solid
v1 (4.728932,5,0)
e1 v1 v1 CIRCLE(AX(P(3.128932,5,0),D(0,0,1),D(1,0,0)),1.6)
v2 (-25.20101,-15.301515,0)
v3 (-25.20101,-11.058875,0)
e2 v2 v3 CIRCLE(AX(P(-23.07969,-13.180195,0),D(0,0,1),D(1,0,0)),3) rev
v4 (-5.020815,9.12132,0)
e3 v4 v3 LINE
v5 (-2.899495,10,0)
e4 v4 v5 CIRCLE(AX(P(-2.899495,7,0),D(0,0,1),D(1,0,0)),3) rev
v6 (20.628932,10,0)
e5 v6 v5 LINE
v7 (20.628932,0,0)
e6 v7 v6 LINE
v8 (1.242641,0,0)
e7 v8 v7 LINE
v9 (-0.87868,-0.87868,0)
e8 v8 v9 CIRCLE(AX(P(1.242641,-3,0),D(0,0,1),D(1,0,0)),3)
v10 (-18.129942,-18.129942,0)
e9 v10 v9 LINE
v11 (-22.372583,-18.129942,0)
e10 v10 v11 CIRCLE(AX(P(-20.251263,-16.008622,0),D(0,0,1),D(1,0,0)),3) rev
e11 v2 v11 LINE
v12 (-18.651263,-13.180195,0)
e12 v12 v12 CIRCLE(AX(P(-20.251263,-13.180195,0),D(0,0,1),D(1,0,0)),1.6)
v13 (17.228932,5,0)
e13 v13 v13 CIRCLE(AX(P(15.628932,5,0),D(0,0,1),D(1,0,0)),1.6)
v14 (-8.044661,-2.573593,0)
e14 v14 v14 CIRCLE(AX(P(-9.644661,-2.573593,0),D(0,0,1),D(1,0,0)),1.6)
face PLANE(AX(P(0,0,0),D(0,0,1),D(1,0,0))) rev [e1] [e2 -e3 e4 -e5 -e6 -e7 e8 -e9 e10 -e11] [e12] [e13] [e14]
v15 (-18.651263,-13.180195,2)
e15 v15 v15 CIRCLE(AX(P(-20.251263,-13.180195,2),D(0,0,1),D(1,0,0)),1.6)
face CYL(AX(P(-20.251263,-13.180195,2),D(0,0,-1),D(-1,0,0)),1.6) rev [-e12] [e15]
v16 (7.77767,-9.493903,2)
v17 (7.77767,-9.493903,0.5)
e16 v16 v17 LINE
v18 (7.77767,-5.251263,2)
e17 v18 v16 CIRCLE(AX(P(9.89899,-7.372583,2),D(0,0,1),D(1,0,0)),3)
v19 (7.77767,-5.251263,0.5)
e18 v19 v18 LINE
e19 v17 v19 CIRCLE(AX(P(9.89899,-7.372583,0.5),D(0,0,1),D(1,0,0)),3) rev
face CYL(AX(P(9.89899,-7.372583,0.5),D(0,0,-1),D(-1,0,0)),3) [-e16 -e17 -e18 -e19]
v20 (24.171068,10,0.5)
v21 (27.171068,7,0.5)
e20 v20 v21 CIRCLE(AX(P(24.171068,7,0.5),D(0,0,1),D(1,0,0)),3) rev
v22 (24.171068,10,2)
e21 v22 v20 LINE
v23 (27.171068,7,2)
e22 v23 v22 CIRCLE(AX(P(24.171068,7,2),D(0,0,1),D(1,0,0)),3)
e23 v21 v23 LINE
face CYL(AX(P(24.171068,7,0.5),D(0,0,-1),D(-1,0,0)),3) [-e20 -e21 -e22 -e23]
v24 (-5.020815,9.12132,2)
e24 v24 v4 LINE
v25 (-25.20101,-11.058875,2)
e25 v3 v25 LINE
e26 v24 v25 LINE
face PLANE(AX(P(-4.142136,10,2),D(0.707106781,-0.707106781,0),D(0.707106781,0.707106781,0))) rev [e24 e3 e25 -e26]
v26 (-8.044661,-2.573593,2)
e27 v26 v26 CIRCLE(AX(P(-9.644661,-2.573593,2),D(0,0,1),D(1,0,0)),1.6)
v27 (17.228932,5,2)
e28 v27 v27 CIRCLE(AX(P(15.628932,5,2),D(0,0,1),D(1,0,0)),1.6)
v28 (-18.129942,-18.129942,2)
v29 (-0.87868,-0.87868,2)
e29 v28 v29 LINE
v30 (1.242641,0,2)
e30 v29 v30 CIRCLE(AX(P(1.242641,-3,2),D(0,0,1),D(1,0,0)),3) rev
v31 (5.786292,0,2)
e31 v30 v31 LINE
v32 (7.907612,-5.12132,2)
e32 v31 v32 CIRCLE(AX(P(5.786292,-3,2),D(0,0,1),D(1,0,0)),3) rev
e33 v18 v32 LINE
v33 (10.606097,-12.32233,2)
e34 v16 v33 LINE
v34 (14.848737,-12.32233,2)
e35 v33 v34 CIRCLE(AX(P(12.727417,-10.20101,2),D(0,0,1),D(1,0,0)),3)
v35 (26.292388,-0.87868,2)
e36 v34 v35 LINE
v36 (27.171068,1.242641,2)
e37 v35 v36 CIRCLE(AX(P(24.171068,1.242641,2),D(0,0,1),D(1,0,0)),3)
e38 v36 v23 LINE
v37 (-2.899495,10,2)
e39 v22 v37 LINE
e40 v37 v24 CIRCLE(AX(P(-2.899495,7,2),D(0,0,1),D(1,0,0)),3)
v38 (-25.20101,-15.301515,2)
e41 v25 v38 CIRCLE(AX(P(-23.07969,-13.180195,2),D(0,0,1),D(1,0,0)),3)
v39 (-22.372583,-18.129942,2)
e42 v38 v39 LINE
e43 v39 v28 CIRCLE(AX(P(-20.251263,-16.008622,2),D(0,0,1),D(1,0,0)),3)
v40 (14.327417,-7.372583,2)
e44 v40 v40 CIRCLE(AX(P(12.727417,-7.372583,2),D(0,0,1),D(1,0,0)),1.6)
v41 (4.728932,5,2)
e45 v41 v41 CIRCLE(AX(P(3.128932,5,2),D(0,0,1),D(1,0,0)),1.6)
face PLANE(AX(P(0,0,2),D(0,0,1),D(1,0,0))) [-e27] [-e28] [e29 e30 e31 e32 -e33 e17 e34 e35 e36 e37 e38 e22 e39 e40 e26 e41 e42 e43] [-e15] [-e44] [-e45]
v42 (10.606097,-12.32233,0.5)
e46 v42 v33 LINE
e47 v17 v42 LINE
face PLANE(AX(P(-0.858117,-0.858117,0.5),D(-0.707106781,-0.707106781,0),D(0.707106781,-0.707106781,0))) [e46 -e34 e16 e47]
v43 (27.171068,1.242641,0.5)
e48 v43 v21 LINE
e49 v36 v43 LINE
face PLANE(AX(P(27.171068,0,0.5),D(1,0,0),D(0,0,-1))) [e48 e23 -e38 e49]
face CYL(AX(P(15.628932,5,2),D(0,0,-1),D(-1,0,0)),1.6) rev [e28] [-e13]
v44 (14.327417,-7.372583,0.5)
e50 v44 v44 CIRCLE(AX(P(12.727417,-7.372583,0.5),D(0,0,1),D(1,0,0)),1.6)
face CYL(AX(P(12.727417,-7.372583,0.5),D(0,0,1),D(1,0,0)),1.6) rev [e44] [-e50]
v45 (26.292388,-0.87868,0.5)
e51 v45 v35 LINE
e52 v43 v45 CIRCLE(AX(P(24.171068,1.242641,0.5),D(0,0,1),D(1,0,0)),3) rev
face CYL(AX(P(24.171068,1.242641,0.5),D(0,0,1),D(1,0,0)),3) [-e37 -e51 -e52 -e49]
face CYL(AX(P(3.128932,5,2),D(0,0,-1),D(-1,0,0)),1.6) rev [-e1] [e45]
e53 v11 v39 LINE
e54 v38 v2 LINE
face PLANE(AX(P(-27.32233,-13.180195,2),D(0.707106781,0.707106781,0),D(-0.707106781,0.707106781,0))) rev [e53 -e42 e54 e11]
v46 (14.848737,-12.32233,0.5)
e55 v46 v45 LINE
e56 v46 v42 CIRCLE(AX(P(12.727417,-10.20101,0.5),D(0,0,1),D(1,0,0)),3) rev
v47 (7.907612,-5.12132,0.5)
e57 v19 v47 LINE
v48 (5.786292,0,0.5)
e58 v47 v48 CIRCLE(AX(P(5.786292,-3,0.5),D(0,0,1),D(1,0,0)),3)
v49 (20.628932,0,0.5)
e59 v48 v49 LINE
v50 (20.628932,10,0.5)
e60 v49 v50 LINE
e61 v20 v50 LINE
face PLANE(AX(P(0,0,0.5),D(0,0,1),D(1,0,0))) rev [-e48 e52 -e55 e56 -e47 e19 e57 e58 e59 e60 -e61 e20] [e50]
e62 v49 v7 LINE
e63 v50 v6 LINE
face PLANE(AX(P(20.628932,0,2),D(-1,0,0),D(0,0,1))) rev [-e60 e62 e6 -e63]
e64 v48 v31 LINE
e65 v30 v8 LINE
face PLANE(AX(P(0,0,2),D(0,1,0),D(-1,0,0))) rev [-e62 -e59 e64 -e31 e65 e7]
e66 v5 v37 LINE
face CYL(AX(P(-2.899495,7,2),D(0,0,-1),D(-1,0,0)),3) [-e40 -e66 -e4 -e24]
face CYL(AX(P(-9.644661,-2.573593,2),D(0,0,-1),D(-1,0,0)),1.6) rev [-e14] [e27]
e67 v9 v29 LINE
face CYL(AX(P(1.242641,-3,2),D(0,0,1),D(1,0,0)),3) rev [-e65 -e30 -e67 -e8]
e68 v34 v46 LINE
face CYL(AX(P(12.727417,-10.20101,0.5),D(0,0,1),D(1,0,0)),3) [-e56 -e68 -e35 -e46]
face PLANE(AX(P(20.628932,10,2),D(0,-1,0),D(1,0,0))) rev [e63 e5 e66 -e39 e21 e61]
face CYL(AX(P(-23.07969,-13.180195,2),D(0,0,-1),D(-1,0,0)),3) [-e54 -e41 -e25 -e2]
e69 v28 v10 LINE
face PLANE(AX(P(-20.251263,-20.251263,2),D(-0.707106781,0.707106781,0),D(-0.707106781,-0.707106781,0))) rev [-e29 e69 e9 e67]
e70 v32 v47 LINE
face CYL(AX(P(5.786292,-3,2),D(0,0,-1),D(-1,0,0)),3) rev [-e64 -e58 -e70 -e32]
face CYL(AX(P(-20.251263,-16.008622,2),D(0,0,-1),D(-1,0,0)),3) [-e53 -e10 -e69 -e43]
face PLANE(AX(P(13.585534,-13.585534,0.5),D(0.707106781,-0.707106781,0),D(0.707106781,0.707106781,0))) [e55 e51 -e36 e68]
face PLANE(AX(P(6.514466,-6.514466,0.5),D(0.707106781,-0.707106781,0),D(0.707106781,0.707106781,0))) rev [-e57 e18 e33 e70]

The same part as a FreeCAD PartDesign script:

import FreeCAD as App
import Part
import Sketcher
Q = App.Units.Quantity


def edges_at(feature, points):
    """Names of the edges that pass closest to the given points."""
    edges = feature.Shape.Edges
    near = lambda p: min(range(len(edges)), key=lambda i: edges[i].distToShape(Part.Vertex(*p))[0])
    return sorted({f"Edge{near(p) + 1}" for p in points})

doc = App.newDocument("Part")
params = doc.addObject("Spreadsheet::Sheet", "Params")
for row, (alias, value) in enumerate([
    ("sketch1_diameter", "3.2 mm"),
    ("sketch1_height", "10 mm"),
    ("sketch1_length", "10 mm"),
    ("pad1_length", "2 mm"),
    ("sketch2_diameter", "3.2 mm"),
    ("sketch2_height", "10 mm"),
    ("sketch2_length", "10 mm"),
    ("sketch2_width", "7.6 mm"),
    ("pad2_length", "1.5 mm"),
    ("fillet_radius", "3 mm"),
], start=1):
    params.set(f"A{row}", alias)
    params.set(f"B{row}", "=" + value)
    params.setAlias(f"B{row}", alias)

body = doc.addObject("PartDesign::Body", "Body")

# Sketch on XY plane
sketch1 = body.newObject("Sketcher::SketchObject", "Sketch")
sketch1.AttachmentSupport = (doc.getObject("XY_Plane"), [""])
sketch1.MapMode = "FlatFace"
sketch1.addGeometry([
    Part.LineSegment(App.Vector(-27.3, -13.2, 0), App.Vector(-20.3, -20.3, 0)),  # 0
    Part.LineSegment(App.Vector(-20.3, -20.3, 0), App.Vector(0, 0, 0)),  # 1
    Part.LineSegment(App.Vector(0, 0, 0), App.Vector(20.6, 0, 0)),  # 2
    Part.LineSegment(App.Vector(20.6, 0, 0), App.Vector(20.6, 10, 0)),  # 3
    Part.LineSegment(App.Vector(20.6, 10, 0), App.Vector(-4.1, 10, 0)),  # 4
    Part.LineSegment(App.Vector(-4.1, 10, 0), App.Vector(-27.3, -13.2, 0)),  # 5
    Part.Circle(App.Vector(-20.3, -13.2, 0), App.Vector(0, 0, 1), 1.6),  # 6
    Part.Circle(App.Vector(-9.6, -2.6, 0), App.Vector(0, 0, 1), 1.6),  # 7
    Part.Circle(App.Vector(3.1, 5, 0), App.Vector(0, 0, 1), 1.6),  # 8
    Part.Circle(App.Vector(15.6, 5, 0), App.Vector(0, 0, 1), 1.6),  # 9
], False)
sketch1.addConstraint([
    Sketcher.Constraint("Coincident", 0, 2, 1, 1),
    Sketcher.Constraint("Coincident", 1, 2, 2, 1),
    Sketcher.Constraint("Coincident", 2, 2, 3, 1),
    Sketcher.Constraint("Coincident", 3, 2, 4, 1),
    Sketcher.Constraint("Coincident", 4, 2, 5, 1),
    Sketcher.Constraint("Coincident", 5, 2, 0, 1),
    Sketcher.Constraint("Horizontal", 2),
    Sketcher.Constraint("Vertical", 3),
    Sketcher.Constraint("Horizontal", 4),
    Sketcher.Constraint("Coincident", 1, 2, -1, 1),
    Sketcher.Constraint("Equal", 6, 7),
    Sketcher.Constraint("Equal", 7, 8),
    Sketcher.Constraint("Equal", 8, 9),
    Sketcher.Constraint("Perpendicular", 0, 1),
    Sketcher.Constraint("Parallel", 1, 5),
    Sketcher.Constraint("Horizontal", 8, 3, 9, 3),
    Sketcher.Constraint("Horizontal", 6, 3, 5, 2),
    Sketcher.Constraint("Vertical", 6, 3, 0, 2),
    Sketcher.Constraint("Diameter", 6, Q("3.2 mm")),
    Sketcher.Constraint("DistanceY", 3, 1, 3, 2, Q("10 mm")),
    Sketcher.Constraint("Angle", 0, Q("-45 deg")),
    Sketcher.Constraint("Distance", 0, Q("10 mm")),
    Sketcher.Constraint("DistanceY", -1, 1, 8, 3, Q("5 mm")),
    Sketcher.Constraint("DistanceX", 9, 3, 2, 2, Q("5 mm")),
    Sketcher.Constraint("DistanceX", 8, 3, 9, 3, Q("12.5 mm")),
    Sketcher.Constraint("DistanceX", 6, 3, 7, 3, Q("10.606602 mm")),
    Sketcher.Constraint("DistanceY", 6, 3, 7, 3, Q("10.606602 mm")),
    Sketcher.Constraint("Distance", 1, Q("28.63961 mm")),
    Sketcher.Constraint("DistanceX", 2, 1, 2, 2, Q("20.628932 mm")),
])
sketch1.setExpression("Constraints[18]", "Params.sketch1_diameter")
sketch1.setExpression("Constraints[19]", "Params.sketch1_height")
sketch1.setExpression("Constraints[21]", "Params.sketch1_length")
pad1 = body.newObject("PartDesign::Pad", "Pad")
pad1.Profile = sketch1
pad1.setExpression("Length", "Params.pad1_length")

# Sketch on XY plane
sketch2 = body.newObject("Sketcher::SketchObject", "Sketch001")
sketch2.AttachmentSupport = (doc.getObject("XY_Plane"), [""])
sketch2.MapMode = "FlatFace"
sketch2.AttachmentOffset = App.Placement(App.Vector(0, 0, 2), App.Rotation())
sketch2.addGeometry([
    Part.LineSegment(App.Vector(13, 0, 0), App.Vector(5.7, -7.4, 0)),  # 0
    Part.LineSegment(App.Vector(5.7, -7.4, 0), App.Vector(12.7, -14.4, 0)),  # 1
    Part.LineSegment(App.Vector(12.7, -14.4, 0), App.Vector(27.2, 0, 0)),  # 2
    Part.LineSegment(App.Vector(27.2, 0, 0), App.Vector(27.2, 10, 0)),  # 3
    Part.LineSegment(App.Vector(27.2, 10, 0), App.Vector(20.6, 10, 0)),  # 4
    Part.LineSegment(App.Vector(20.6, 10, 0), App.Vector(20.6, 0, 0)),  # 5
    Part.LineSegment(App.Vector(20.6, 0, 0), App.Vector(13, 0, 0)),  # 6
    Part.Circle(App.Vector(12.7, -7.4, 0), App.Vector(0, 0, 1), 1.6),  # 7
], False)
sketch2.addConstraint([
    Sketcher.Constraint("Coincident", 0, 2, 1, 1),
    Sketcher.Constraint("Coincident", 1, 2, 2, 1),
    Sketcher.Constraint("Coincident", 2, 2, 3, 1),
    Sketcher.Constraint("Coincident", 3, 2, 4, 1),
    Sketcher.Constraint("Coincident", 4, 2, 5, 1),
    Sketcher.Constraint("Coincident", 5, 2, 6, 1),
    Sketcher.Constraint("Coincident", 6, 2, 0, 1),
    Sketcher.Constraint("Vertical", 3),
    Sketcher.Constraint("Horizontal", 4),
    Sketcher.Constraint("Vertical", 5),
    Sketcher.Constraint("Horizontal", 6),
    Sketcher.Constraint("PointOnObject", 2, 2, -1),
    Sketcher.Constraint("PointOnObject", 5, 2, -1),
    Sketcher.Constraint("Perpendicular", 0, 1),
    Sketcher.Constraint("Perpendicular", 1, 2),
    Sketcher.Constraint("Horizontal", 7, 3, 0, 2),
    Sketcher.Constraint("Vertical", 7, 3, 1, 2),
    Sketcher.Constraint("Diameter", 7, Q("3.2 mm")),
    Sketcher.Constraint("DistanceY", 3, 1, 3, 2, Q("10 mm")),
    Sketcher.Constraint("Angle", 0, Q("-135 deg")),
    Sketcher.Constraint("Distance", 1, Q("10 mm")),
    Sketcher.Constraint("DistanceX", 6, 2, 6, 1, Q("7.6 mm")),
    Sketcher.Constraint("DistanceX", -1, 1, 0, 2, Q("5.656349 mm")),
    Sketcher.Constraint("DistanceY", 1, 2, -1, 1, Q("14.443651 mm")),
])
sketch2.setExpression("Constraints[17]", "Params.sketch2_diameter")
sketch2.setExpression("Constraints[18]", "Params.sketch2_height")
sketch2.setExpression("Constraints[20]", "Params.sketch2_length")
sketch2.setExpression("Constraints[21]", "Params.sketch2_width")
pad2 = body.newObject("PartDesign::Pad", "Pad001")
pad2.Profile = sketch2
pad2.setExpression("Length", "Params.pad2_length")
pad2.Reversed = True
doc.recompute()

fillet = body.newObject("PartDesign::Fillet", "Fillet")
fillet.Base = (pad2, edges_at(pad2, [
    (-4.142, 10, 1),
    (0, 0, 1),
    (-20.251, -20.251, 1),
    (-27.322, -13.18, 1),
    (27.171, 10, 1.25),
    (27.171, 0, 1.25),
    (12.727, -14.444, 1.25),
    (5.656, -7.373, 1.25),
    (13.029, 0, 1.25),
]))
fillet.setExpression("Radius", "Params.fillet_radius")

doc.recompute()
